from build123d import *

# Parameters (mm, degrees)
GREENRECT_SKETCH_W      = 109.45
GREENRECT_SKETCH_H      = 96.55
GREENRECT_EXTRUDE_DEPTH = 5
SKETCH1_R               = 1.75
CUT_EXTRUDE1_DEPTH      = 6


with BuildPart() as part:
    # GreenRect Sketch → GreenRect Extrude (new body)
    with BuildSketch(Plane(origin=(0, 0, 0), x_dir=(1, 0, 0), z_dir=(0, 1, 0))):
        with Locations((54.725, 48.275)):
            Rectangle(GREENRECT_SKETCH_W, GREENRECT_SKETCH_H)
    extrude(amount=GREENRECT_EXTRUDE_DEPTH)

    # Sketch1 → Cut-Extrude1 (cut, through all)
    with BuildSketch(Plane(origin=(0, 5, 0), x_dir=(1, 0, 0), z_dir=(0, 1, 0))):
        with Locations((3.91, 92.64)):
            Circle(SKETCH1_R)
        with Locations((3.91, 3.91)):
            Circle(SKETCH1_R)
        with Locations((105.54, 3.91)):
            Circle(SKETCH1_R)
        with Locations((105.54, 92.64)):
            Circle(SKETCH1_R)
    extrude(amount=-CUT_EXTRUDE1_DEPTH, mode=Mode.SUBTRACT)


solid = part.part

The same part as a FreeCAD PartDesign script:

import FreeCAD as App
import Part
import Sketcher
Q = App.Units.Quantity


def add_polygon(sketch, points):
    """Adds a closed chain of lines whose ends are joined by coincident constraints."""
    first, n = sketch.GeometryCount, len(points)
    for a, b in zip(points, points[1:] + points[:1]):
        sketch.addGeometry(Part.LineSegment(App.Vector(*a, 0), App.Vector(*b, 0)), False)
    for i in range(n):
        sketch.addConstraint(Sketcher.Constraint("Coincident", first + i, 2, first + (i + 1) % n, 1))

doc = App.newDocument("Part")
body = doc.addObject("PartDesign::Body", "Body")

# Sketch on XZ plane
sketch1 = body.newObject("Sketcher::SketchObject", "Sketch")
sketch1.AttachmentSupport = (doc.getObject("XZ_Plane"), [""])
sketch1.MapMode = "FlatFace"
add_polygon(sketch1, [(0, -97), (0, 0), (109, 0), (109, -97)])  # lines 0-3
sketch1.addConstraint([
    Sketcher.Constraint("Vertical", 0),
    Sketcher.Constraint("Horizontal", 1),
    Sketcher.Constraint("Vertical", 2),
    Sketcher.Constraint("Horizontal", 3),
    Sketcher.Constraint("Coincident", 0, 2, -1, 1),
    Sketcher.Constraint("DistanceX", 1, 1, 1, 2, Q("109.45 mm")),
    Sketcher.Constraint("DistanceY", 0, 1, 0, 2, Q("96.55 mm")),
])
pad1 = body.newObject("PartDesign::Pad", "Pad")
pad1.Profile = sketch1
pad1.Length = 5
pad1.Reversed = True

# Sketch on XZ plane
sketch2 = body.newObject("Sketcher::SketchObject", "Sketch001")
sketch2.AttachmentSupport = (doc.getObject("XZ_Plane"), [""])
sketch2.MapMode = "FlatFace"
sketch2.AttachmentOffset = App.Placement(App.Vector(0, 0, -5), App.Rotation())
sketch2.addGeometry([
    Part.Circle(App.Vector(3.9, -92.6, 0), App.Vector(0, 0, 1), 1.8),
    Part.Circle(App.Vector(3.9, -3.9, 0), App.Vector(0, 0, 1), 1.8),
    Part.Circle(App.Vector(105.5, -3.9, 0), App.Vector(0, 0, 1), 1.8),
    Part.Circle(App.Vector(105.5, -92.6, 0), App.Vector(0, 0, 1), 1.8),
], False)
sketch2.addConstraint([
    Sketcher.Constraint("Equal", 0, 1),
    Sketcher.Constraint("Equal", 1, 2),
    Sketcher.Constraint("Equal", 2, 3),
    Sketcher.Constraint("Horizontal", 1, 3, 2, 3),
    Sketcher.Constraint("Horizontal", 0, 3, 3, 3),
    Sketcher.Constraint("Vertical", 0, 3, 1, 3),
    Sketcher.Constraint("Vertical", 2, 3, 3, 3),
    Sketcher.Constraint("Diameter", 0, Q("3.5 mm")),
    Sketcher.Constraint("DistanceX", -1, 1, 0, 3, Q("3.91 mm")),
    Sketcher.Constraint("DistanceY", 0, 3, -1, 1, Q("92.64 mm")),
    Sketcher.Constraint("DistanceY", 1, 3, -1, 1, Q("3.91 mm")),
    Sketcher.Constraint("DistanceX", -1, 1, 2, 3, Q("105.54 mm")),
])
pocket1 = body.newObject("PartDesign::Pocket", "Pocket")
pocket1.Profile = sketch2
pocket1.Type = "ThroughAll"
pocket1.Reversed = True

doc.recompute()
